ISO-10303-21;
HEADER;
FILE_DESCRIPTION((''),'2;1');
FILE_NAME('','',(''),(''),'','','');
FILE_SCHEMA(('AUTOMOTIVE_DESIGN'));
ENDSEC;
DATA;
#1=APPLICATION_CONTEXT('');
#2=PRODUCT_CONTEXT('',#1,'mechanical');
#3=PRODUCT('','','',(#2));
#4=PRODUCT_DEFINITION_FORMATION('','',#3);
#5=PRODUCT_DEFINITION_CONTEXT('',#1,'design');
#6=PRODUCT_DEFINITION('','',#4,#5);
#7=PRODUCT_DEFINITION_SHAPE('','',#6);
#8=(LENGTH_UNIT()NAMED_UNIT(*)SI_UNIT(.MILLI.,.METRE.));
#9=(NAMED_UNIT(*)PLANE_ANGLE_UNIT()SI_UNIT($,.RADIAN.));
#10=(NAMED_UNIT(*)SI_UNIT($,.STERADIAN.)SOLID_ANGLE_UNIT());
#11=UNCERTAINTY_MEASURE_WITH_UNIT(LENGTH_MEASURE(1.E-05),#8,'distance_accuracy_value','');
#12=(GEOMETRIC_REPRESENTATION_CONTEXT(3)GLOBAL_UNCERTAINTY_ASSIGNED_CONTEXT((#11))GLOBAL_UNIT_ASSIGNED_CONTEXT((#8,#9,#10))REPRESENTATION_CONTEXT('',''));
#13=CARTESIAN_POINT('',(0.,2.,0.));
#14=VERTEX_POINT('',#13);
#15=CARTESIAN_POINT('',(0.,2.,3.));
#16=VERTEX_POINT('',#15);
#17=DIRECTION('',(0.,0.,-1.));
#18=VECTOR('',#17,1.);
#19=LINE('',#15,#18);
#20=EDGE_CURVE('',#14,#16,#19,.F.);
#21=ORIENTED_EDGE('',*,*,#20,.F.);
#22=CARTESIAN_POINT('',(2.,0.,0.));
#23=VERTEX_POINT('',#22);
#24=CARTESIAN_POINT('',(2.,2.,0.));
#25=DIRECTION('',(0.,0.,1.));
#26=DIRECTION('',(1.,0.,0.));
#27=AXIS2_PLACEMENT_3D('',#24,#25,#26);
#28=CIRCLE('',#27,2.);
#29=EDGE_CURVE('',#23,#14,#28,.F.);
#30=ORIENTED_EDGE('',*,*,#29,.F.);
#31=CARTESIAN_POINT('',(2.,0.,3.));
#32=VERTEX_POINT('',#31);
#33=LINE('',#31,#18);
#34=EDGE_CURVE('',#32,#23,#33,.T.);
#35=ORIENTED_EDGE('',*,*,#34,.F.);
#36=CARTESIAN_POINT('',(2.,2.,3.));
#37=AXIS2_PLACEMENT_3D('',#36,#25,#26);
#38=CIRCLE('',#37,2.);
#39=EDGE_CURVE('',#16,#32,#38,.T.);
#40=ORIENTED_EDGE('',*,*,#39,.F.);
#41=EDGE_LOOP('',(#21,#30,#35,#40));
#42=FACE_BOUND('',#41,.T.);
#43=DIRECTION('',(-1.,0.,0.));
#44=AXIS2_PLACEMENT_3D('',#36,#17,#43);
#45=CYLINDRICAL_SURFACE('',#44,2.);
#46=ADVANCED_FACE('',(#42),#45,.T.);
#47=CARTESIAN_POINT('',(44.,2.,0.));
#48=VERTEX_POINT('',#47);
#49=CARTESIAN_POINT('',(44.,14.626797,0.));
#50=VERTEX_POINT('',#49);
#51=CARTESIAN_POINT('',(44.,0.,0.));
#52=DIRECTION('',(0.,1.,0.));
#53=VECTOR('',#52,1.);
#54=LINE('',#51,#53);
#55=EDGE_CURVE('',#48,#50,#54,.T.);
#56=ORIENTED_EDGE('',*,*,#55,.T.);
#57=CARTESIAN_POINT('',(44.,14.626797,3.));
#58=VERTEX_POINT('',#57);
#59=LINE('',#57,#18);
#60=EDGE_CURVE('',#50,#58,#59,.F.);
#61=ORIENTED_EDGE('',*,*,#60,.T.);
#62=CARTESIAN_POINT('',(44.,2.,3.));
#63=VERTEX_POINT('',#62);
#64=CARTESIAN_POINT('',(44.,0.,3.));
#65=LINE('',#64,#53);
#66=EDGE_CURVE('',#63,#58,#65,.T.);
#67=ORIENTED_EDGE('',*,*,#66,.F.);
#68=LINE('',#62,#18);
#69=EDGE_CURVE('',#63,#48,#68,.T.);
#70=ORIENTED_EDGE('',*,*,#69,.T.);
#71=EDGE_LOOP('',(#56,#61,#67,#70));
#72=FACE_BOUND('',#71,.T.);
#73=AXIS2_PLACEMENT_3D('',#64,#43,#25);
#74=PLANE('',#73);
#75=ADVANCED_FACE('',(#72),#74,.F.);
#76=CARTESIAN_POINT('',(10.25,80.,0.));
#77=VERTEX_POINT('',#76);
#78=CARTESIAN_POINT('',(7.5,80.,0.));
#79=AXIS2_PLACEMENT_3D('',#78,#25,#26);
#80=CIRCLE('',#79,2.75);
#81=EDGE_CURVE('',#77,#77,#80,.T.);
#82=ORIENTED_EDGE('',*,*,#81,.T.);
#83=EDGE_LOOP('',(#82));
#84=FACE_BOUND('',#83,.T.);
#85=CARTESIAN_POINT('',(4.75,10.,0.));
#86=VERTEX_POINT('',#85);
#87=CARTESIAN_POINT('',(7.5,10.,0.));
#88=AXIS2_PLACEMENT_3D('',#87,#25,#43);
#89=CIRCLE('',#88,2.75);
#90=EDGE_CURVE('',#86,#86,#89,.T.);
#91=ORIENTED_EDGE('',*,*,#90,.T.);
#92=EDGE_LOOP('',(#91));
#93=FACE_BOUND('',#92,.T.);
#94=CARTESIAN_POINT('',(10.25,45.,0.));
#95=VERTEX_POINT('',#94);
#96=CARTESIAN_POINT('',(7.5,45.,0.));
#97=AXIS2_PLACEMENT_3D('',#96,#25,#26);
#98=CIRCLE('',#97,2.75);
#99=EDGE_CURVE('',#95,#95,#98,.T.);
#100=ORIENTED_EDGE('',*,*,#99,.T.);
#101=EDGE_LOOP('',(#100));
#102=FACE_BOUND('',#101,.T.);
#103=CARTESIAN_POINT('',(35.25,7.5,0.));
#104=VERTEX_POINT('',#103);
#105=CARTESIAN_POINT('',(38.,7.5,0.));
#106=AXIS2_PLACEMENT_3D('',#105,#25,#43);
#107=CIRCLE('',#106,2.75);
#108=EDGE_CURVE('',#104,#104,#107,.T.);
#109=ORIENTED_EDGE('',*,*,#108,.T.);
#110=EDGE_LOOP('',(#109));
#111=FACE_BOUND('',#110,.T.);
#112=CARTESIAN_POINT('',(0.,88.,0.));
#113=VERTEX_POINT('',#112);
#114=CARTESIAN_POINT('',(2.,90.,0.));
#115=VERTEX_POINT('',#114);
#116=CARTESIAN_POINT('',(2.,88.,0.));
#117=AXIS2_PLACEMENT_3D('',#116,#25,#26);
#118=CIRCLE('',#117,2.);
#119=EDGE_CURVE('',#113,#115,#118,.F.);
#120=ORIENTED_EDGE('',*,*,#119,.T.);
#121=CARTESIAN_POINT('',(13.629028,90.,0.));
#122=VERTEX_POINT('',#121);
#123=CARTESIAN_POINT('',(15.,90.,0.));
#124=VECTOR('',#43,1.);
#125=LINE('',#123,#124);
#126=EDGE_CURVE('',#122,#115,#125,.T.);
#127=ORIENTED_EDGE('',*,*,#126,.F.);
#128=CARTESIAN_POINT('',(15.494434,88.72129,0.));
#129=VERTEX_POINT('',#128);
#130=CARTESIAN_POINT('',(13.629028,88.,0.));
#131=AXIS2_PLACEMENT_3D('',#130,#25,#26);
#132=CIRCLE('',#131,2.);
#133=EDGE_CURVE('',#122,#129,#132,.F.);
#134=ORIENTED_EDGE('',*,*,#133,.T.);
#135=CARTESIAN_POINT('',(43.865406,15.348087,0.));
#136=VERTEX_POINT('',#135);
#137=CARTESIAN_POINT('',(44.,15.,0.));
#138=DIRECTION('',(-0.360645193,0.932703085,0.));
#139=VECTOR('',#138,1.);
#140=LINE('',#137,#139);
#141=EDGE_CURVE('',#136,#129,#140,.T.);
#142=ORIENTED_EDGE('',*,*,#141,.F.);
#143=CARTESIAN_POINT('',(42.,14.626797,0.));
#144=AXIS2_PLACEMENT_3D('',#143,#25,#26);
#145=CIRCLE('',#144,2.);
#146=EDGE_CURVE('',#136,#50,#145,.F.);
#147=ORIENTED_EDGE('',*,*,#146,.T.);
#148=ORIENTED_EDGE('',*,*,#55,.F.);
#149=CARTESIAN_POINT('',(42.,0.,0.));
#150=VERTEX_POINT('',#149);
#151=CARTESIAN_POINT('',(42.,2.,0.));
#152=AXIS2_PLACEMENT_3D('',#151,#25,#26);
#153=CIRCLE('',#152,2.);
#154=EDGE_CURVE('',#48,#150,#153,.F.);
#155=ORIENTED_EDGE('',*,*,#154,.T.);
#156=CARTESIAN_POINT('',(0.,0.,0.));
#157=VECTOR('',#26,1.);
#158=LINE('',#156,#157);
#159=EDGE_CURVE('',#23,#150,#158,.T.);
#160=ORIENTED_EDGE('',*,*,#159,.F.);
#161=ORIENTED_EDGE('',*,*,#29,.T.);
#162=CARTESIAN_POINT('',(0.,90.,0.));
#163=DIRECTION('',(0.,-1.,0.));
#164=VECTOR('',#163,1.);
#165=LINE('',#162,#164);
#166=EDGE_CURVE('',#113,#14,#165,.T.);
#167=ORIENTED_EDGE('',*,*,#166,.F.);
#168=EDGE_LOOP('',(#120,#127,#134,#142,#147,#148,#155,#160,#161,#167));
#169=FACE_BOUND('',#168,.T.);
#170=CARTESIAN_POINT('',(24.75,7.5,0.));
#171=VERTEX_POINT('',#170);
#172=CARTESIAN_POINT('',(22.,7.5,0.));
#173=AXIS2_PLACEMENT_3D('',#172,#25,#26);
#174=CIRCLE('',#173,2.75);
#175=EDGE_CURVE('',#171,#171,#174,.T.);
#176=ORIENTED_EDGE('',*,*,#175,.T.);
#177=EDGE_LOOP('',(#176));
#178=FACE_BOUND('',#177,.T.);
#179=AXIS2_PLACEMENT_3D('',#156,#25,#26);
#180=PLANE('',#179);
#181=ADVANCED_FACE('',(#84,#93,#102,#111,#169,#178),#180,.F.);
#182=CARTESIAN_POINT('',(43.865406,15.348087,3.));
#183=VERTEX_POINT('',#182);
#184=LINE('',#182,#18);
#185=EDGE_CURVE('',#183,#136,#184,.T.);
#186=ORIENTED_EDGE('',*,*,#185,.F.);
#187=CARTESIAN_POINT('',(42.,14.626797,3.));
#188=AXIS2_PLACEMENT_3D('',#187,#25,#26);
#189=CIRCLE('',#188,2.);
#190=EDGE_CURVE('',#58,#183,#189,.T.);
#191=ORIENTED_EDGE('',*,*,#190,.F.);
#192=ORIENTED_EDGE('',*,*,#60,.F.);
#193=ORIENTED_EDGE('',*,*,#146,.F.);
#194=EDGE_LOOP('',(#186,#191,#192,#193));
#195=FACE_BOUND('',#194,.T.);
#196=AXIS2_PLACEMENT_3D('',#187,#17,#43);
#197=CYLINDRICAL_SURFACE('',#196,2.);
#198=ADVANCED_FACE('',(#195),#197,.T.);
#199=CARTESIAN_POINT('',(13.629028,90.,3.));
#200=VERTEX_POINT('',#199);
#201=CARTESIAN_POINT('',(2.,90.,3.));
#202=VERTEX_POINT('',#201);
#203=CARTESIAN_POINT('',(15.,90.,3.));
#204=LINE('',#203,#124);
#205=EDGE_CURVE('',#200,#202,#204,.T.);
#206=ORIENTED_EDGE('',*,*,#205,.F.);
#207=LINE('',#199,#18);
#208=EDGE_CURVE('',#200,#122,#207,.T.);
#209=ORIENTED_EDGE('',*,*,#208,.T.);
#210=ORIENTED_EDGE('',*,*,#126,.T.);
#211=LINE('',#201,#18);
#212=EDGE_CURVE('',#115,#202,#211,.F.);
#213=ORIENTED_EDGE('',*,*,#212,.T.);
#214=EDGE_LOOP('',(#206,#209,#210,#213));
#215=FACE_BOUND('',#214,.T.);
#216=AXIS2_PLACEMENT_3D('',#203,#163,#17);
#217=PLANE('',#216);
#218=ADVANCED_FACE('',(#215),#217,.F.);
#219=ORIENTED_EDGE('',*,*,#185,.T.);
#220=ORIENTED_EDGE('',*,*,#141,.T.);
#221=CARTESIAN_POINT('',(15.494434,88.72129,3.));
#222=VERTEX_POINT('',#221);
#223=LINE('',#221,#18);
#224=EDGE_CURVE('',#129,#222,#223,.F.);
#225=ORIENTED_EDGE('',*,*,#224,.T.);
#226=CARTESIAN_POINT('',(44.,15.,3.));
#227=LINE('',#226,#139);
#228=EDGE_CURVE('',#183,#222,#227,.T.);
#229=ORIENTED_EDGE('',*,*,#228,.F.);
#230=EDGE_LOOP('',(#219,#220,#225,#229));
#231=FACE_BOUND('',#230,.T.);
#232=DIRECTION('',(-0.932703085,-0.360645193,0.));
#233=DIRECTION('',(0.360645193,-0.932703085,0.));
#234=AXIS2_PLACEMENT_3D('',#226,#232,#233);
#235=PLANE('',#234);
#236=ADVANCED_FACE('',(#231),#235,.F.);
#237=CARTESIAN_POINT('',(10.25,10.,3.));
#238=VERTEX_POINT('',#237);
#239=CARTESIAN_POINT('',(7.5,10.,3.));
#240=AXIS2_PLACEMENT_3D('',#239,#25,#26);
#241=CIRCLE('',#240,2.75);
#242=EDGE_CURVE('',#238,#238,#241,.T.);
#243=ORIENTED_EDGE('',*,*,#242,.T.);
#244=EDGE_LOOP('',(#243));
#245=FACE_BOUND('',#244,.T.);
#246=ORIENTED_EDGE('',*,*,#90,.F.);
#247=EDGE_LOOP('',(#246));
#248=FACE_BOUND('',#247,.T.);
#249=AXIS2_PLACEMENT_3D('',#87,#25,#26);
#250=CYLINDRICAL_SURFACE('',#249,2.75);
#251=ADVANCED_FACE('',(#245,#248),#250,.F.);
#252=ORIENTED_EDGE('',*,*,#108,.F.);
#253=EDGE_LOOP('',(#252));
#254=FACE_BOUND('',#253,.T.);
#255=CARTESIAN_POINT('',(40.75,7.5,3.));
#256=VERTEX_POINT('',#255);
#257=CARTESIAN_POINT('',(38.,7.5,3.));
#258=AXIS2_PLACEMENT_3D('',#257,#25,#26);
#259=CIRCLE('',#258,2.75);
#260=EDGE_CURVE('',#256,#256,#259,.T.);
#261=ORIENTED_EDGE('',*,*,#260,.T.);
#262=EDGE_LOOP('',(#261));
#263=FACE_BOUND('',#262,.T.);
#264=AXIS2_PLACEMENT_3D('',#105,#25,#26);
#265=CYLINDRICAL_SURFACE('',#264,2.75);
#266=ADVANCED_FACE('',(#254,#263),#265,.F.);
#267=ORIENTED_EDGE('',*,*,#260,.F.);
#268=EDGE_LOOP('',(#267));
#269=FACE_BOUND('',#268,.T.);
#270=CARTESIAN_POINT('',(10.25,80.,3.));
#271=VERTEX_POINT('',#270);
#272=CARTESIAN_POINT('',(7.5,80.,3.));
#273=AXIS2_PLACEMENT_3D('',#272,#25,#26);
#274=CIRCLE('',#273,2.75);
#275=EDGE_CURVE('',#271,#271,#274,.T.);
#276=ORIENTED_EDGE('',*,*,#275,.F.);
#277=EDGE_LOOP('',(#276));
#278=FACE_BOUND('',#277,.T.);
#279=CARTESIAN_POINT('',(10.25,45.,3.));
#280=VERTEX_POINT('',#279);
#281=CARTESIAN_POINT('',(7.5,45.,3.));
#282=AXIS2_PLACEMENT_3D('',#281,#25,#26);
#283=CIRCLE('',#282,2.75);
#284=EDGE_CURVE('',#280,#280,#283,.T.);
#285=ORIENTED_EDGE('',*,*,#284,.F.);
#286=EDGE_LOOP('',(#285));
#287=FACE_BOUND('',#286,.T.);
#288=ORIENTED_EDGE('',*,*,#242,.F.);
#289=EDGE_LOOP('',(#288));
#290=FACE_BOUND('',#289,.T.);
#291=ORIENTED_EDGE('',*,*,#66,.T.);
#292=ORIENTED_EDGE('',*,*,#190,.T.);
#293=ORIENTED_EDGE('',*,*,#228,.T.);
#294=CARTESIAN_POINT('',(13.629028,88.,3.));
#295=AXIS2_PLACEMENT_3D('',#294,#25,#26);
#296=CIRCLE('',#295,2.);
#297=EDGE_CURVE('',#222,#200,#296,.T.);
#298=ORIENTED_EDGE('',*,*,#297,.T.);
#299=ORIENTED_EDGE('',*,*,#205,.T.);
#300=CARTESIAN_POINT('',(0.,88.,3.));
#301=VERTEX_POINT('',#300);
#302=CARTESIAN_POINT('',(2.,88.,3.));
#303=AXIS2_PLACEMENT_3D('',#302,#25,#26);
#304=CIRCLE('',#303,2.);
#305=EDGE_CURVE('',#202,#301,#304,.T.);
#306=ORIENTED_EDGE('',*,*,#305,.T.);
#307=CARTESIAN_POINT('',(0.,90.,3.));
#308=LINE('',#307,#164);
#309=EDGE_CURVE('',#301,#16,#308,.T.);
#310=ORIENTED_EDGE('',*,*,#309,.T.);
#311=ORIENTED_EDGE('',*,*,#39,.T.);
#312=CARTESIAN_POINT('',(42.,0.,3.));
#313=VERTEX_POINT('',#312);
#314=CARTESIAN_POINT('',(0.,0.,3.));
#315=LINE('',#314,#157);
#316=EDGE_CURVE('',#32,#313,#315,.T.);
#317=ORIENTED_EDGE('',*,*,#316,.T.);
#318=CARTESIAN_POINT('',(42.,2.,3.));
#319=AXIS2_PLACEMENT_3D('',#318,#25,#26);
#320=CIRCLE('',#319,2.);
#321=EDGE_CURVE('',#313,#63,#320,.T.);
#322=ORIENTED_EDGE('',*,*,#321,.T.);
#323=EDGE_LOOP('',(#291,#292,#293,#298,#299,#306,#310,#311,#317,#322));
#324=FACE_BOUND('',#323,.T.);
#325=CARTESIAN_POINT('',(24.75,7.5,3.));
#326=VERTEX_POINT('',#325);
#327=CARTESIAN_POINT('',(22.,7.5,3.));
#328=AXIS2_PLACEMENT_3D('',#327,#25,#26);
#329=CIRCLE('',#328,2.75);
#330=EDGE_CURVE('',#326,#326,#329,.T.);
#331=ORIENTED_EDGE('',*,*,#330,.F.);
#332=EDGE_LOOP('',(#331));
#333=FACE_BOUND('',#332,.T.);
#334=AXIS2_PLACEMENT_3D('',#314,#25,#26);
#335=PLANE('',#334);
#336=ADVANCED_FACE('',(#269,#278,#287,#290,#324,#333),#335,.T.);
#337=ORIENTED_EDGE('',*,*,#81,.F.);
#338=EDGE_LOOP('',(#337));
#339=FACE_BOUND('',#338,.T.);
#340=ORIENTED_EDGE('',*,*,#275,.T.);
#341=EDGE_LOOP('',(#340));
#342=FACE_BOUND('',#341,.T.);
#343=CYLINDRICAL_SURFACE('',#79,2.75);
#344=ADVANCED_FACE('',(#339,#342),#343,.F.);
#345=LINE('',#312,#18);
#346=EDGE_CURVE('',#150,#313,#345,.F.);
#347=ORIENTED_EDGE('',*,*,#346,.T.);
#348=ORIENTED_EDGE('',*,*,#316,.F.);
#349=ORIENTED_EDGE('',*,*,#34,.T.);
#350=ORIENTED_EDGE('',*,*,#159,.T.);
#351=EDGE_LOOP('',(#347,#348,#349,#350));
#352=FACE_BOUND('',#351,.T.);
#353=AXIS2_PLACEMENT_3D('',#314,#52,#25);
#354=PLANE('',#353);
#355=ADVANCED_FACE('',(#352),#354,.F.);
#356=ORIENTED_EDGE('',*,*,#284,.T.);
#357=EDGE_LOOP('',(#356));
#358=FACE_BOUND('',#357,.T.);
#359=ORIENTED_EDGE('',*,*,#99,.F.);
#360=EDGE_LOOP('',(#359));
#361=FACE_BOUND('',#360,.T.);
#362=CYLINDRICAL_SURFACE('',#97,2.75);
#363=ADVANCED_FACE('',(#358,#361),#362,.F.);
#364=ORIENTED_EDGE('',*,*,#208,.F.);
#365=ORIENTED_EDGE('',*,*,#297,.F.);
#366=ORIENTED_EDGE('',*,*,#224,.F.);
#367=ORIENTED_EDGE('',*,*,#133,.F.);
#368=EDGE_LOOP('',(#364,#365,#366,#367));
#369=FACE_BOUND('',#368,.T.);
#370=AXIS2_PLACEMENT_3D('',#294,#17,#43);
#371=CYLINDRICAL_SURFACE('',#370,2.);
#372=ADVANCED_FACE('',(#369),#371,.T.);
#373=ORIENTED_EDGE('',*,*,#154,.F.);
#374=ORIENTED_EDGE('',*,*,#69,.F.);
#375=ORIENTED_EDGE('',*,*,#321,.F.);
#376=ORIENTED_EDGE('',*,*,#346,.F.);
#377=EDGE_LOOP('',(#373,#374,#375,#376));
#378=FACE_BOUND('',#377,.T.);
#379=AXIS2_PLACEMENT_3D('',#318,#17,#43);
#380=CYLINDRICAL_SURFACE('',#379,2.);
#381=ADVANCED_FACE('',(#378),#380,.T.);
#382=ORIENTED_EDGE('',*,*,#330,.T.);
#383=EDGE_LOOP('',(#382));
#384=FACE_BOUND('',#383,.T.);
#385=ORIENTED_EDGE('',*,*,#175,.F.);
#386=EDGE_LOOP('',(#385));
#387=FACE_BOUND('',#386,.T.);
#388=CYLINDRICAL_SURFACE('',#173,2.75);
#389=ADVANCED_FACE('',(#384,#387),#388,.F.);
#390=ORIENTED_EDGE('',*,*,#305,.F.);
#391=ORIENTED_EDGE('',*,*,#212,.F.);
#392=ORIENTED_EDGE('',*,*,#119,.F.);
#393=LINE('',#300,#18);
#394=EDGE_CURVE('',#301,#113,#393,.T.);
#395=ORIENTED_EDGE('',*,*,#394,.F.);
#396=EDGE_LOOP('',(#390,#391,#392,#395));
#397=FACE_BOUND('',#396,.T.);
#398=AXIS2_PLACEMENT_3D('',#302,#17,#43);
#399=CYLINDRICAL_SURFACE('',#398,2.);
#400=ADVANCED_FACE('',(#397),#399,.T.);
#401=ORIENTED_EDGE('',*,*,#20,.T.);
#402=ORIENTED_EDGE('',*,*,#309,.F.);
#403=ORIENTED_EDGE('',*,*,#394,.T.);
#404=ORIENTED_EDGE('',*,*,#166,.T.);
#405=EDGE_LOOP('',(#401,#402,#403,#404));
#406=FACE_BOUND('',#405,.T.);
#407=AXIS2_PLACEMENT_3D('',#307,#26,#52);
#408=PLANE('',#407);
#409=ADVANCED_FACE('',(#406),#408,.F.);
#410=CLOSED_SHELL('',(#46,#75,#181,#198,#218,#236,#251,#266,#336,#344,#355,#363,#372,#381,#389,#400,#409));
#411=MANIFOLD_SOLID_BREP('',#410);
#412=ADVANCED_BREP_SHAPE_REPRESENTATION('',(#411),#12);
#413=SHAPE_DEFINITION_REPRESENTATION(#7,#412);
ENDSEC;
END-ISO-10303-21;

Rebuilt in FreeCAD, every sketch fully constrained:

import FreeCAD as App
import Part
import Sketcher

V = App.Vector
Q = App.Units.Quantity


def edges_at(feature, points):
    """Names of the edges that pass closest to the given points."""
    edges = feature.Shape.Edges
    near = lambda p: min(range(len(edges)), key=lambda i: edges[i].distToShape(Part.Vertex(*p))[0])
    return sorted({f"Edge{near(p) + 1}" for p in points})

doc = App.newDocument("Part")
params = doc.addObject("Spreadsheet::Sheet", "Params")
for row, (alias, value) in enumerate([
    ("sketch1_width", "44 mm"),
    ("sketch1_width2", "15 mm"),
    ("sketch1_height", "90 mm"),
    ("pad1_length", "3 mm"),
    ("sketch2_diameter", "5.5 mm"),
    ("fillet_radius", "2 mm"),
], start=1):
    params.set(f"A{row}", alias)
    params.set(f"B{row}", "=" + value)
    params.setAlias(f"B{row}", alias)

body = doc.addObject("PartDesign::Body", "Body")

# Sketch on XY plane
sketch1 = body.newObject("Sketcher::SketchObject", "Sketch")
sketch1.AttachmentSupport = (doc.getObject("XY_Plane"), [""])
sketch1.MapMode = "FlatFace"
sketch1.addGeometry(Part.LineSegment(V(0, 0, 0), V(44, 0, 0)), False)
sketch1.addGeometry(Part.LineSegment(V(44, 0, 0), V(44, 15, 0)), False)
sketch1.addGeometry(Part.LineSegment(V(44, 15, 0), V(15, 90, 0)), False)
sketch1.addGeometry(Part.LineSegment(V(15, 90, 0), V(0, 90, 0)), False)
sketch1.addGeometry(Part.LineSegment(V(0, 90, 0), V(0, 0, 0)), False)
sketch1.addConstraint(Sketcher.Constraint("Coincident", 0, 2, 1, 1))
sketch1.addConstraint(Sketcher.Constraint("Coincident", 1, 2, 2, 1))
sketch1.addConstraint(Sketcher.Constraint("Coincident", 2, 2, 3, 1))
sketch1.addConstraint(Sketcher.Constraint("Coincident", 3, 2, 4, 1))
sketch1.addConstraint(Sketcher.Constraint("Coincident", 4, 2, 0, 1))
sketch1.addConstraint(Sketcher.Constraint("Horizontal", 0))
sketch1.addConstraint(Sketcher.Constraint("Vertical", 1))
sketch1.addConstraint(Sketcher.Constraint("Horizontal", 3))
sketch1.addConstraint(Sketcher.Constraint("Vertical", 4))
sketch1.addConstraint(Sketcher.Constraint("Coincident", 4, 2, -1, 1))
sketch1.addConstraint(Sketcher.Constraint("Equal", 3, 1))
sketch1.addConstraint(Sketcher.Constraint("DistanceX", 0, 1, 0, 2, Q("44 mm")))
sketch1.addConstraint(Sketcher.Constraint("DistanceX", 3, 2, 3, 1, Q("15 mm")))
sketch1.addConstraint(Sketcher.Constraint("DistanceY", 4, 2, 4, 1, Q("90 mm")))
sketch1.setExpression("Constraints[11]", "Params.sketch1_width")
sketch1.setExpression("Constraints[12]", "Params.sketch1_width2")
sketch1.setExpression("Constraints[13]", "Params.sketch1_height")
pad1 = body.newObject("PartDesign::Pad", "Pad")
pad1.Profile = sketch1
pad1.setExpression("Length", "Params.pad1_length")

# Sketch on XY plane
sketch2 = body.newObject("Sketcher::SketchObject", "Sketch001")
sketch2.AttachmentSupport = (doc.getObject("XY_Plane"), [""])
sketch2.MapMode = "FlatFace"
sketch2.AttachmentOffset = App.Placement(V(0, 0, 3), App.Rotation())
sketch2.addGeometry(Part.Circle(V(7.5, 10, 0), V(0, 0, 1), 2.75), False)
sketch2.addGeometry(Part.Circle(V(7.5, 45, 0), V(0, 0, 1), 2.75), False)
sketch2.addGeometry(Part.Circle(V(7.5, 80, 0), V(0, 0, 1), 2.75), False)
sketch2.addGeometry(Part.Circle(V(22, 7.5, 0), V(0, 0, 1), 2.75), False)
sketch2.addGeometry(Part.Circle(V(38, 7.5, 0), V(0, 0, 1), 2.75), False)
sketch2.addConstraint(Sketcher.Constraint("Equal", 0, 1))
sketch2.addConstraint(Sketcher.Constraint("Equal", 1, 2))
sketch2.addConstraint(Sketcher.Constraint("Equal", 2, 3))
sketch2.addConstraint(Sketcher.Constraint("Equal", 3, 4))
sketch2.addConstraint(Sketcher.Constraint("Horizontal", 3, 3, 4, 3))
sketch2.addConstraint(Sketcher.Constraint("Vertical", 0, 3, 1, 3))
sketch2.addConstraint(Sketcher.Constraint("Vertical", 1, 3, 2, 3))
sketch2.addConstraint(Sketcher.Constraint("Diameter", 0, Q("5.5 mm")))
sketch2.addConstraint(Sketcher.Constraint("DistanceY", -1, 1, 0, 3, Q("10 mm")))
sketch2.addConstraint(Sketcher.Constraint("DistanceY", -1, 1, 1, 3, Q("45 mm")))
sketch2.addConstraint(Sketcher.Constraint("DistanceY", -1, 1, 2, 3, Q("80 mm")))
sketch2.addConstraint(Sketcher.Constraint("DistanceX", -1, 1, 3, 3, Q("22 mm")))
sketch2.addConstraint(Sketcher.Constraint("DistanceX", -1, 1, 4, 3, Q("38 mm")))
sketch2.addConstraint(Sketcher.Constraint("DistanceX", -1, 1, 0, 3, Q("7.5 mm")))
sketch2.addConstraint(Sketcher.Constraint("DistanceY", -1, 1, 3, 3, Q("7.5 mm")))
sketch2.setExpression("Constraints[7]", "Params.sketch2_diameter")
pocket1 = body.newObject("PartDesign::Pocket", "Pocket")
pocket1.Profile = sketch2
pocket1.Type = "ThroughAll"
pocket1.Midplane = True
doc.recompute()

fillet = body.newObject("PartDesign::Fillet", "Fillet")
fillet.Base = (pocket1, edges_at(pocket1, [
    (0, 90, 1.5),
    (15, 90, 1.5),
    (44, 15, 1.5),
    (44, 0, 1.5),
    (0, 0, 1.5),
]))
fillet.setExpression("Radius", "Params.fillet_radius")

doc.recompute()
